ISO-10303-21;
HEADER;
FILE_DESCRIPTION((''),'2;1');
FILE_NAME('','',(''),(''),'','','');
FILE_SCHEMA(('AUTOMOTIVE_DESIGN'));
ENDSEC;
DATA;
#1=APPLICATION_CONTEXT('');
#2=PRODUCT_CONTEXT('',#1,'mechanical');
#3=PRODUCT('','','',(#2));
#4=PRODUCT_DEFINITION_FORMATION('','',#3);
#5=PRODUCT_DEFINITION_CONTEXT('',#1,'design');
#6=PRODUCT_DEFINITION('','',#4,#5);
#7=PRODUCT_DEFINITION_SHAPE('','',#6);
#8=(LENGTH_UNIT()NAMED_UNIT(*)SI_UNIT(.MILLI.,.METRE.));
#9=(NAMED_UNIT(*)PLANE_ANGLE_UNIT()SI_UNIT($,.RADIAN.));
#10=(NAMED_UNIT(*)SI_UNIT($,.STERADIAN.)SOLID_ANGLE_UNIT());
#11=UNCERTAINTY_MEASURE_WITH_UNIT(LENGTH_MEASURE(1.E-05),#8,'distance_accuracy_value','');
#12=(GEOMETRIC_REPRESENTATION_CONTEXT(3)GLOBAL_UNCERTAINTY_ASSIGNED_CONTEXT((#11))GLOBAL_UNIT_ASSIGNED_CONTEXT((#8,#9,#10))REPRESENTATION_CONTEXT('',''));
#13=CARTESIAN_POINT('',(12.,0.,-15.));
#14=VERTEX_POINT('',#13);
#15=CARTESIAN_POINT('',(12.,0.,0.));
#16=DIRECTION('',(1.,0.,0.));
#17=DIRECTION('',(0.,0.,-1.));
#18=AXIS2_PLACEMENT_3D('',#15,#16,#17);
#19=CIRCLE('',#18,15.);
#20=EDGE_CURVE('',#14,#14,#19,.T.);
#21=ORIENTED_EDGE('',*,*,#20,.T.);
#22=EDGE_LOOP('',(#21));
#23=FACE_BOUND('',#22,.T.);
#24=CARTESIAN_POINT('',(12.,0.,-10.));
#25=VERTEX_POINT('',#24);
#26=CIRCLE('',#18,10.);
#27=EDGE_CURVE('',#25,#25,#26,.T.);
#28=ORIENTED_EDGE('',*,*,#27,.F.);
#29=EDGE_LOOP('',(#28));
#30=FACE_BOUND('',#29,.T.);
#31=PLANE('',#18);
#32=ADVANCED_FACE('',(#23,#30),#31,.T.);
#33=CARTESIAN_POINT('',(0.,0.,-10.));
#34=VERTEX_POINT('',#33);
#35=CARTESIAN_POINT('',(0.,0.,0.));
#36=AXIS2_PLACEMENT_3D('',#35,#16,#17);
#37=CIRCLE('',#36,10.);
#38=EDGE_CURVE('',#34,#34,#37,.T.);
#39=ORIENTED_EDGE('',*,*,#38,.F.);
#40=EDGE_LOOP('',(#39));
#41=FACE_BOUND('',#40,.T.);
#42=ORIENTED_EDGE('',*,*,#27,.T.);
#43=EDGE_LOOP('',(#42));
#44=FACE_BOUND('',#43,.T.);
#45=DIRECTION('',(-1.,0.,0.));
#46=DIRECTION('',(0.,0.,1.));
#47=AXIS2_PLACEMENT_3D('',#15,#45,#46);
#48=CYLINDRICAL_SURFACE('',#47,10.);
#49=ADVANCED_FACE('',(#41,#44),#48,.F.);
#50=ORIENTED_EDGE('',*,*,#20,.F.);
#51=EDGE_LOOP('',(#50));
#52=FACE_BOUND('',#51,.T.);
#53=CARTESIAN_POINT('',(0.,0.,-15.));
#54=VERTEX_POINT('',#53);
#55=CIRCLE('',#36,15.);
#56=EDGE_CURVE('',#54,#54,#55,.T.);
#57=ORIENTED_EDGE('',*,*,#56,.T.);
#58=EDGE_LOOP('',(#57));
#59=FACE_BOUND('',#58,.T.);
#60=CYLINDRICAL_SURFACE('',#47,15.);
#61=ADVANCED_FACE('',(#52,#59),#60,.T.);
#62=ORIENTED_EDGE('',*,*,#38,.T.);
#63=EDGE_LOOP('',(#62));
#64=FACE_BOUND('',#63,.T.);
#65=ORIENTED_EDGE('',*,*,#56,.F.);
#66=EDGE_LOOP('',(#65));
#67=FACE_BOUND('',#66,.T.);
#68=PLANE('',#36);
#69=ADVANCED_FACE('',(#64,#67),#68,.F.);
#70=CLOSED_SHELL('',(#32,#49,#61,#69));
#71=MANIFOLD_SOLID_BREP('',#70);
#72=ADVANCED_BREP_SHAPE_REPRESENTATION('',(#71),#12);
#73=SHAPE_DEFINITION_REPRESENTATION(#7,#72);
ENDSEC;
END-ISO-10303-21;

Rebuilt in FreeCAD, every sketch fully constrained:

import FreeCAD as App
import Part
import Sketcher

V = App.Vector

doc = App.newDocument("Part")
body = doc.addObject("PartDesign::Body", "Body")

# Sketch on YZ plane
sketch1 = doc.addObject("Sketcher::SketchObject", "Sketch")
body.addObject(sketch1)
sketch1.AttachmentSupport = (doc.YZ_Plane, [""])
sketch1.MapMode = "FlatFace"
sketch1.addGeometry(Part.Circle(V(0, 0, 0), V(0, 0, 1), 15), False)
sketch1.addGeometry(Part.Circle(V(0, 0, 0), V(0, 0, 1), 10), False)
sketch1.addConstraint(Sketcher.Constraint("Coincident", 0, 3, -1, 1))
sketch1.addConstraint(Sketcher.Constraint("Coincident", 1, 3, -1, 1))
sketch1.addConstraint(Sketcher.Constraint("Diameter", 0, 30.0))
sketch1.addConstraint(Sketcher.Constraint("Diameter", 1, 20.0))
pad1 = doc.addObject("PartDesign::Pad", "Pad")
body.addObject(pad1)
pad1.Profile = sketch1
pad1.Length = 12

doc.recompute()
